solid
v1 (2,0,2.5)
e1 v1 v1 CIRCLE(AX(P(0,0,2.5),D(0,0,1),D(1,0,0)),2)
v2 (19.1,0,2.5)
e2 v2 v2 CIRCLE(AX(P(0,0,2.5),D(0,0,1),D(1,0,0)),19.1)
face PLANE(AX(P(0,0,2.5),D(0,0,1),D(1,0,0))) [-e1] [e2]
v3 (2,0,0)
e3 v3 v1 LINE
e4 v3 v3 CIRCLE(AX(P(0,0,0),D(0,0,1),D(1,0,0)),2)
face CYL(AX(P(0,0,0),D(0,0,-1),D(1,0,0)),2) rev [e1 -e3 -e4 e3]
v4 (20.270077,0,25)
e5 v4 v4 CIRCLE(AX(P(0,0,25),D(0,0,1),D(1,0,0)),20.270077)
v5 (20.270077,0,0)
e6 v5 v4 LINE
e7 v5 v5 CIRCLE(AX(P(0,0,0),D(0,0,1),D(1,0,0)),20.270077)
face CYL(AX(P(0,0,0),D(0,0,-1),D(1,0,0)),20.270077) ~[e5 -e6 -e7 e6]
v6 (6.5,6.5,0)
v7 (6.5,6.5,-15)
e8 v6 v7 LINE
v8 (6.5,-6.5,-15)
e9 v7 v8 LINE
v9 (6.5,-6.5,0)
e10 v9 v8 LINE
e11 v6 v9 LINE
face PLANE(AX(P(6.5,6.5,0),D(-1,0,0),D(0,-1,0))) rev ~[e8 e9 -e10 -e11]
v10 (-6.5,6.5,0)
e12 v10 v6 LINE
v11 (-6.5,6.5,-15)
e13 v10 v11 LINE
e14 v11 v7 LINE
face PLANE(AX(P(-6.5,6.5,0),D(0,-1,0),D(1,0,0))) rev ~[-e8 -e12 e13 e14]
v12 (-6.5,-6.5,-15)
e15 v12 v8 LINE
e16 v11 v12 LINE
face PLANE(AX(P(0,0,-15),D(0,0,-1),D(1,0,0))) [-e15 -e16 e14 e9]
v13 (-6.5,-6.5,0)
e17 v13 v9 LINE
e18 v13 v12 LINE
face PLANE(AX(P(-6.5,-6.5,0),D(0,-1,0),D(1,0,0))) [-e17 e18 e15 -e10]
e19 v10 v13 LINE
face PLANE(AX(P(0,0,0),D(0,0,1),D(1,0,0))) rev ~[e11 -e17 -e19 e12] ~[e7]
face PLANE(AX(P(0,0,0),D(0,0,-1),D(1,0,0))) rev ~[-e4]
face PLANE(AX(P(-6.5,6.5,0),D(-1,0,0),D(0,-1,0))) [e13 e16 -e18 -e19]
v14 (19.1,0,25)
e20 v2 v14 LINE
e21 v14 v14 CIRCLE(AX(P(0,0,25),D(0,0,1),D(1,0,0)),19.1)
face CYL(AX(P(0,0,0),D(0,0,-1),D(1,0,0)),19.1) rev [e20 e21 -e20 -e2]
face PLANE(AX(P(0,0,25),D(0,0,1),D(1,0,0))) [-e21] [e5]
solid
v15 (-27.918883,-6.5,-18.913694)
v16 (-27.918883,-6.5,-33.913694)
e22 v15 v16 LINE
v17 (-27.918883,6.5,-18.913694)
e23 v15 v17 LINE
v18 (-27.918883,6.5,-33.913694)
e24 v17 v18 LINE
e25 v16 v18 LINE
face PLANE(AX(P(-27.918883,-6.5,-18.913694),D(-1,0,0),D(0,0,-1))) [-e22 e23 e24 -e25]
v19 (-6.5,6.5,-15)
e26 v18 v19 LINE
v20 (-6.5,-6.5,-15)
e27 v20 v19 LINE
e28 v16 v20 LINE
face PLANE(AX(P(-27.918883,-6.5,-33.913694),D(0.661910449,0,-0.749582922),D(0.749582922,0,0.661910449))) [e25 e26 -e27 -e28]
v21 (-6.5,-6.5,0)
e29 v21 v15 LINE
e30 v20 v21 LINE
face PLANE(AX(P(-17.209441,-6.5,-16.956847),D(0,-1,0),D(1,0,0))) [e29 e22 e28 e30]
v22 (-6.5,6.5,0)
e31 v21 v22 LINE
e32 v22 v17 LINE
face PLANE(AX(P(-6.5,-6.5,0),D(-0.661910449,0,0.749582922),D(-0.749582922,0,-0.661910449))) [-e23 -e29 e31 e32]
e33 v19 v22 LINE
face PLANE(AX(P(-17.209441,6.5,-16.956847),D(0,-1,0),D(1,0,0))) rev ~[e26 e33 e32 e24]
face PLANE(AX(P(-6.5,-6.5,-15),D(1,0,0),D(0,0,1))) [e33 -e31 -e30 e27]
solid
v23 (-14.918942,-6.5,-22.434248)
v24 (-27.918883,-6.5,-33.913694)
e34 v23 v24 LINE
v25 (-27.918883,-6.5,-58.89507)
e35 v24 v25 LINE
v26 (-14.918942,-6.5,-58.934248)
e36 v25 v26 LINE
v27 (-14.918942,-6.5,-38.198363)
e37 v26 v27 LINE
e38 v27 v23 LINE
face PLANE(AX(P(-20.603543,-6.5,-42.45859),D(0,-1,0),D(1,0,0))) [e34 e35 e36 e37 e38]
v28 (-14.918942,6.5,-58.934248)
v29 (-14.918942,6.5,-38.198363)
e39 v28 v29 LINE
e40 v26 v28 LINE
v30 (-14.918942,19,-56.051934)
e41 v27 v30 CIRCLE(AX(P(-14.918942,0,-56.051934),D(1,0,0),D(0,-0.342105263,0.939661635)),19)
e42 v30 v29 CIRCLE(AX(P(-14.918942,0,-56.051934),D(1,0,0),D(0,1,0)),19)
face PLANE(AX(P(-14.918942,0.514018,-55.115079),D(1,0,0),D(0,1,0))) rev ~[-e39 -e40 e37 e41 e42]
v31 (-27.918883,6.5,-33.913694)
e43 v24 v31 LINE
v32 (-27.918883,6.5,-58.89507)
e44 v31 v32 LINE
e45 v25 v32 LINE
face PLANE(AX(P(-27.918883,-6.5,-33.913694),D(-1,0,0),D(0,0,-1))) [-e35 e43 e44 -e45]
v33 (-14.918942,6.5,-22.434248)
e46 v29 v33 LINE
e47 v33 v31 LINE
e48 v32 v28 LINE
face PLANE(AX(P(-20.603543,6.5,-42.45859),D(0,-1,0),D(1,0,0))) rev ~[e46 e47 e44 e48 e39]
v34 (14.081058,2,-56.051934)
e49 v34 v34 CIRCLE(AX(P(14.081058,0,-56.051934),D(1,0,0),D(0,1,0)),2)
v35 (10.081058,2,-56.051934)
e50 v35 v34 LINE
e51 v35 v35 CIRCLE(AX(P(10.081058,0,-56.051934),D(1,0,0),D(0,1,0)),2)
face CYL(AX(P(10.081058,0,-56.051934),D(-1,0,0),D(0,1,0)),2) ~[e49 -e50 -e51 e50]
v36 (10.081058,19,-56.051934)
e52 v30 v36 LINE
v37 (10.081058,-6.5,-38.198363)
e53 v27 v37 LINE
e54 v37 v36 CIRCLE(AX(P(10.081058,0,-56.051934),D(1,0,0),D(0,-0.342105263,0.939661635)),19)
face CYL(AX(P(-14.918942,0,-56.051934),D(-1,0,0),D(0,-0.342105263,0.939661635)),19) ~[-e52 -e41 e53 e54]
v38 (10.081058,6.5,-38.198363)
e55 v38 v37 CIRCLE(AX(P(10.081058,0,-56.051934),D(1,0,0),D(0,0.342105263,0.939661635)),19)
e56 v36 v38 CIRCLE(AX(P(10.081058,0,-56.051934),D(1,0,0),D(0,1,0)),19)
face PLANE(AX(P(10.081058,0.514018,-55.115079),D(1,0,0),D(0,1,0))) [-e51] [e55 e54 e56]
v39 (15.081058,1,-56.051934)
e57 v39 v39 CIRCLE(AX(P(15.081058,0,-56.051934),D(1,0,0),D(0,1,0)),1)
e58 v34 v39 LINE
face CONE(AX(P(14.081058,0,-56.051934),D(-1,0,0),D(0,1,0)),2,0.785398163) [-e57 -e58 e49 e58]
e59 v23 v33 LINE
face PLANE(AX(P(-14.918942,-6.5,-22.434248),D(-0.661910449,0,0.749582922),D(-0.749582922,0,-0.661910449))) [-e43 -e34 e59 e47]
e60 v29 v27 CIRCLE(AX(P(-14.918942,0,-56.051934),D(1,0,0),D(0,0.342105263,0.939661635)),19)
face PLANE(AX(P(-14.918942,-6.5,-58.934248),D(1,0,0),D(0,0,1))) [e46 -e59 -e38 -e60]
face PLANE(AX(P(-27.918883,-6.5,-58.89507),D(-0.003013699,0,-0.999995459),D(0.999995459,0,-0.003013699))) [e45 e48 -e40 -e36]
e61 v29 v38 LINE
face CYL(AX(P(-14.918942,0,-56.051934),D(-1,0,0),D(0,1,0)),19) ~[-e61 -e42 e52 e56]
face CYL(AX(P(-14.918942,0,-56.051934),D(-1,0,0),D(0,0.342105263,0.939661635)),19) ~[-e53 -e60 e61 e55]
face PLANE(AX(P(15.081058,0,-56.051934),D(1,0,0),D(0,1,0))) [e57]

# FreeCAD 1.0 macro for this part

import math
import FreeCAD as App
import Part
import Sketcher
Q = App.Units.Quantity


def edges_at(feature, points):
    """Names of the edges that pass closest to the given points."""
    edges = feature.Shape.Edges
    near = lambda p: min(range(len(edges)), key=lambda i: edges[i].distToShape(Part.Vertex(*p))[0])
    return sorted({f"Edge{near(p) + 1}" for p in points})

doc = App.newDocument("Part")
body = doc.addObject("PartDesign::Body", "Body")

sketch1 = body.newObject("Sketcher::SketchObject", "Sketch")
sketch1.AttachmentSupport = (doc.getObject("XY_Plane"), [""])
sketch1.MapMode = "FlatFace"
sketch1.addGeometry(Part.Circle(App.Vector(0, 0, 0), App.Vector(0, 0, 1), 19.1), False)
sketch1.addGeometry(Part.Circle(App.Vector(0, 0, 0), App.Vector(0, 0, 1), 2), False)
sketch1.addConstraint(Sketcher.Constraint("Coincident", 0, 3, -1, 1))
sketch1.addConstraint(Sketcher.Constraint("Coincident", 1, 3, -1, 1))
sketch1.addConstraint(Sketcher.Constraint("Diameter", 1, Q("4 mm")))
sketch1.addConstraint(Sketcher.Constraint("Diameter", 0, Q("38.2 mm")))
pad1 = body.newObject("PartDesign::Pad", "Pad")
pad1.Profile = sketch1
pad1.Length = 2.5

sketch2 = body.newObject("Sketcher::SketchObject", "Sketch001")
sketch2.AttachmentSupport = (doc.getObject("XY_Plane"), [""])
sketch2.MapMode = "FlatFace"
sketch2.addGeometry(Part.Circle(App.Vector(0, 0, 0), App.Vector(0, 0, 1), 20), False)
sketch2.addGeometry(Part.Circle(App.Vector(0, 0, 0), App.Vector(0, 0, 1), 19), False)
sketch2.addConstraint(Sketcher.Constraint("Coincident", 0, 3, -1, 1))
sketch2.addConstraint(Sketcher.Constraint("Coincident", 1, 3, -1, 1))
sketch2.addConstraint(Sketcher.Constraint("Diameter", 1, Q("38.2 mm")))
sketch2.addConstraint(Sketcher.Constraint("Diameter", 0, Q("40.540153 mm")))
pad2 = body.newObject("PartDesign::Pad", "Pad001")
pad2.Profile = sketch2
pad2.Length = 25

sketch3 = body.newObject("Sketcher::SketchObject", "Sketch002")
sketch3.AttachmentSupport = (doc.getObject("XY_Plane"), [""])
sketch3.MapMode = "FlatFace"
sketch3.addGeometry(Part.LineSegment(App.Vector(-6, -6, 0), App.Vector(-6, 6, 0)), False)
sketch3.addGeometry(Part.LineSegment(App.Vector(-6, 6, 0), App.Vector(6, 6, 0)), False)
sketch3.addGeometry(Part.LineSegment(App.Vector(6, 6, 0), App.Vector(6, -6, 0)), False)
sketch3.addGeometry(Part.LineSegment(App.Vector(6, -6, 0), App.Vector(-6, -6, 0)), False)
sketch3.addConstraint(Sketcher.Constraint("Coincident", 0, 2, 1, 1))
sketch3.addConstraint(Sketcher.Constraint("Coincident", 1, 2, 2, 1))
sketch3.addConstraint(Sketcher.Constraint("Coincident", 2, 2, 3, 1))
sketch3.addConstraint(Sketcher.Constraint("Coincident", 3, 2, 0, 1))
sketch3.addConstraint(Sketcher.Constraint("Vertical", 0))
sketch3.addConstraint(Sketcher.Constraint("Horizontal", 1))
sketch3.addConstraint(Sketcher.Constraint("Vertical", 2))
sketch3.addConstraint(Sketcher.Constraint("Horizontal", 3))
sketch3.addConstraint(Sketcher.Constraint("Symmetric", 0, 2, 2, 2, -1, 1))
sketch3.addConstraint(Sketcher.Constraint("Equal", 3, 0))
sketch3.addConstraint(Sketcher.Constraint("DistanceX", 1, 1, 1, 2, Q("13 mm")))
pad3 = body.newObject("PartDesign::Pad", "Pad002")
pad3.Profile = sketch3
pad3.Length = 15
pad3.Reversed = True
body2 = doc.addObject("PartDesign::Body", "Body001")

sketch4 = body2.newObject("Sketcher::SketchObject", "Sketch003")
sketch4.AttachmentSupport = (doc.getObject("XZ_Plane001"), [""])
sketch4.MapMode = "FlatFace"
sketch4.AttachmentOffset = App.Placement(App.Vector(0, 0, 6.5), App.Rotation())
sketch4.addGeometry(Part.LineSegment(App.Vector(-28, -34, 0), App.Vector(-6, -15, 0)), False)
sketch4.addGeometry(Part.LineSegment(App.Vector(-6, -15, 0), App.Vector(-6, 0, 0)), False)
sketch4.addGeometry(Part.LineSegment(App.Vector(-6, 0, 0), App.Vector(-28, -19, 0)), False)
sketch4.addGeometry(Part.LineSegment(App.Vector(-28, -19, 0), App.Vector(-28, -34, 0)), False)
sketch4.addConstraint(Sketcher.Constraint("Coincident", 0, 2, 1, 1))
sketch4.addConstraint(Sketcher.Constraint("Coincident", 1, 2, 2, 1))
sketch4.addConstraint(Sketcher.Constraint("Coincident", 2, 2, 3, 1))
sketch4.addConstraint(Sketcher.Constraint("Coincident", 3, 2, 0, 1))
sketch4.addConstraint(Sketcher.Constraint("Vertical", 1))
sketch4.addConstraint(Sketcher.Constraint("Vertical", 3))
sketch4.addConstraint(Sketcher.Constraint("PointOnObject", 1, 2, -1))
sketch4.addConstraint(Sketcher.Constraint("Parallel", 0, 2))
sketch4.addConstraint(Sketcher.Constraint("DistanceY", 1, 1, 1, 2, Q("15 mm")))
sketch4.addConstraint(Sketcher.Constraint("DistanceX", 0, 2, -1, 1, Q("6.5 mm")))
sketch4.addConstraint(Sketcher.Constraint("Distance", 0, Q("28.574401 mm")))
sketch4.addConstraint(Sketcher.Constraint("DistanceX", 2, 2, -1, 1, Q("27.918883 mm")))
pad4 = body2.newObject("PartDesign::Pad", "Pad003")
pad4.Profile = sketch4
pad4.Length = 13
pad4.Reversed = True
body3 = doc.addObject("PartDesign::Body", "Body002")

sketch5 = body3.newObject("Sketcher::SketchObject", "Sketch004")
sketch5.AttachmentSupport = (doc.getObject("XZ_Plane002"), [""])
sketch5.MapMode = "FlatFace"
sketch5.AttachmentOffset = App.Placement(App.Vector(0, 0, 6.5), App.Rotation())
sketch5.addGeometry(Part.LineSegment(App.Vector(-15, -22, 0), App.Vector(-28, -34, 0)), False)
sketch5.addGeometry(Part.LineSegment(App.Vector(-28, -34, 0), App.Vector(-28, -59, 0)), False)
sketch5.addGeometry(Part.LineSegment(App.Vector(-28, -59, 0), App.Vector(-15, -59, 0)), False)
sketch5.addGeometry(Part.LineSegment(App.Vector(-15, -59, 0), App.Vector(-15, -22, 0)), False)
sketch5.addConstraint(Sketcher.Constraint("Coincident", 0, 2, 1, 1))
sketch5.addConstraint(Sketcher.Constraint("Coincident", 1, 2, 2, 1))
sketch5.addConstraint(Sketcher.Constraint("Coincident", 2, 2, 3, 1))
sketch5.addConstraint(Sketcher.Constraint("Coincident", 3, 2, 0, 1))
sketch5.addConstraint(Sketcher.Constraint("Vertical", 1))
sketch5.addConstraint(Sketcher.Constraint("Vertical", 3))
sketch5.addConstraint(Sketcher.Constraint("Distance", 2, Q("13 mm")))
sketch5.addConstraint(Sketcher.Constraint("DistanceY", 3, 1, 3, 2, Q("36.5 mm")))
sketch5.addConstraint(Sketcher.Constraint("Distance", 0, Q("17.342899 mm")))
sketch5.addConstraint(Sketcher.Constraint("DistanceY", 1, 2, 1, 1, Q("24.981376 mm")))
sketch5.addConstraint(Sketcher.Constraint("DistanceY", 1, 2, -1, 1, Q("58.89507 mm")))
sketch5.addConstraint(Sketcher.Constraint("DistanceX", 2, 2, -1, 1, Q("14.918942 mm")))
pad5 = body3.newObject("PartDesign::Pad", "Pad004")
pad5.Profile = sketch5
pad5.Length = 13
pad5.Reversed = True

sketch6 = body3.newObject("Sketcher::SketchObject", "Sketch005")
sketch6.AttachmentSupport = (doc.getObject("YZ_Plane002"), [""])
sketch6.MapMode = "FlatFace"
sketch6.AttachmentOffset = App.Placement(App.Vector(0, 0, -14.918942), App.Rotation())
sketch6.addGeometry(Part.ArcOfCircle(Part.Circle(App.Vector(0, -56, 0), App.Vector(0, 0, 1), 19), math.radians(110), math.radians(360)), False)
sketch6.addGeometry(Part.ArcOfCircle(Part.Circle(App.Vector(0, -56, 0), App.Vector(0, 0, 1), 19), math.radians(0), math.radians(70)), False)
sketch6.addGeometry(Part.ArcOfCircle(Part.Circle(App.Vector(0, -56, 0), App.Vector(0, 0, 1), 19), math.radians(70), math.radians(110)), False)
sketch6.addConstraint(Sketcher.Constraint("Tangent", 0, 2, 1, 1))
sketch6.addConstraint(Sketcher.Constraint("Tangent", 1, 2, 2, 1))
sketch6.addConstraint(Sketcher.Constraint("Tangent", 2, 2, 0, 1))
sketch6.addConstraint(Sketcher.Constraint("Symmetric", 1, 2, 2, 2, -2))
sketch6.addConstraint(Sketcher.Constraint("Horizontal", 2, 3, 0, 2))
sketch6.addConstraint(Sketcher.Constraint("Radius", 0, Q("19 mm")))
sketch6.addConstraint(Sketcher.Constraint("DistanceX", 2, 2, 1, 2, Q("13 mm")))
sketch6.addConstraint(Sketcher.Constraint("DistanceY", 0, 3, -1, 1, Q("56.051934 mm")))
pad6 = body3.newObject("PartDesign::Pad", "Pad005")
pad6.Profile = sketch6
pad6.Length = 25

sketch7 = body3.newObject("Sketcher::SketchObject", "Sketch006")
sketch7.AttachmentSupport = (doc.getObject("YZ_Plane002"), [""])
sketch7.MapMode = "FlatFace"
sketch7.AttachmentOffset = App.Placement(App.Vector(0, 0, 10.081058), App.Rotation())
sketch7.addGeometry(Part.Circle(App.Vector(0, -56.1, 0), App.Vector(0, 0, 1), 2), False)
sketch7.addConstraint(Sketcher.Constraint("PointOnObject", 0, 3, -2))
sketch7.addConstraint(Sketcher.Constraint("Diameter", 0, Q("4 mm")))
sketch7.addConstraint(Sketcher.Constraint("DistanceY", 0, 3, -1, 1, Q("56.051934 mm")))
pad7 = body3.newObject("PartDesign::Pad", "Pad006")
pad7.Profile = sketch7
pad7.Length = 5
doc.recompute()

chamfer = body3.newObject("PartDesign::Chamfer", "Chamfer")
chamfer.Base = (pad7, edges_at(pad7, [(15.081, -2, -56.052)]))
chamfer.Size = 1

doc.recompute()
